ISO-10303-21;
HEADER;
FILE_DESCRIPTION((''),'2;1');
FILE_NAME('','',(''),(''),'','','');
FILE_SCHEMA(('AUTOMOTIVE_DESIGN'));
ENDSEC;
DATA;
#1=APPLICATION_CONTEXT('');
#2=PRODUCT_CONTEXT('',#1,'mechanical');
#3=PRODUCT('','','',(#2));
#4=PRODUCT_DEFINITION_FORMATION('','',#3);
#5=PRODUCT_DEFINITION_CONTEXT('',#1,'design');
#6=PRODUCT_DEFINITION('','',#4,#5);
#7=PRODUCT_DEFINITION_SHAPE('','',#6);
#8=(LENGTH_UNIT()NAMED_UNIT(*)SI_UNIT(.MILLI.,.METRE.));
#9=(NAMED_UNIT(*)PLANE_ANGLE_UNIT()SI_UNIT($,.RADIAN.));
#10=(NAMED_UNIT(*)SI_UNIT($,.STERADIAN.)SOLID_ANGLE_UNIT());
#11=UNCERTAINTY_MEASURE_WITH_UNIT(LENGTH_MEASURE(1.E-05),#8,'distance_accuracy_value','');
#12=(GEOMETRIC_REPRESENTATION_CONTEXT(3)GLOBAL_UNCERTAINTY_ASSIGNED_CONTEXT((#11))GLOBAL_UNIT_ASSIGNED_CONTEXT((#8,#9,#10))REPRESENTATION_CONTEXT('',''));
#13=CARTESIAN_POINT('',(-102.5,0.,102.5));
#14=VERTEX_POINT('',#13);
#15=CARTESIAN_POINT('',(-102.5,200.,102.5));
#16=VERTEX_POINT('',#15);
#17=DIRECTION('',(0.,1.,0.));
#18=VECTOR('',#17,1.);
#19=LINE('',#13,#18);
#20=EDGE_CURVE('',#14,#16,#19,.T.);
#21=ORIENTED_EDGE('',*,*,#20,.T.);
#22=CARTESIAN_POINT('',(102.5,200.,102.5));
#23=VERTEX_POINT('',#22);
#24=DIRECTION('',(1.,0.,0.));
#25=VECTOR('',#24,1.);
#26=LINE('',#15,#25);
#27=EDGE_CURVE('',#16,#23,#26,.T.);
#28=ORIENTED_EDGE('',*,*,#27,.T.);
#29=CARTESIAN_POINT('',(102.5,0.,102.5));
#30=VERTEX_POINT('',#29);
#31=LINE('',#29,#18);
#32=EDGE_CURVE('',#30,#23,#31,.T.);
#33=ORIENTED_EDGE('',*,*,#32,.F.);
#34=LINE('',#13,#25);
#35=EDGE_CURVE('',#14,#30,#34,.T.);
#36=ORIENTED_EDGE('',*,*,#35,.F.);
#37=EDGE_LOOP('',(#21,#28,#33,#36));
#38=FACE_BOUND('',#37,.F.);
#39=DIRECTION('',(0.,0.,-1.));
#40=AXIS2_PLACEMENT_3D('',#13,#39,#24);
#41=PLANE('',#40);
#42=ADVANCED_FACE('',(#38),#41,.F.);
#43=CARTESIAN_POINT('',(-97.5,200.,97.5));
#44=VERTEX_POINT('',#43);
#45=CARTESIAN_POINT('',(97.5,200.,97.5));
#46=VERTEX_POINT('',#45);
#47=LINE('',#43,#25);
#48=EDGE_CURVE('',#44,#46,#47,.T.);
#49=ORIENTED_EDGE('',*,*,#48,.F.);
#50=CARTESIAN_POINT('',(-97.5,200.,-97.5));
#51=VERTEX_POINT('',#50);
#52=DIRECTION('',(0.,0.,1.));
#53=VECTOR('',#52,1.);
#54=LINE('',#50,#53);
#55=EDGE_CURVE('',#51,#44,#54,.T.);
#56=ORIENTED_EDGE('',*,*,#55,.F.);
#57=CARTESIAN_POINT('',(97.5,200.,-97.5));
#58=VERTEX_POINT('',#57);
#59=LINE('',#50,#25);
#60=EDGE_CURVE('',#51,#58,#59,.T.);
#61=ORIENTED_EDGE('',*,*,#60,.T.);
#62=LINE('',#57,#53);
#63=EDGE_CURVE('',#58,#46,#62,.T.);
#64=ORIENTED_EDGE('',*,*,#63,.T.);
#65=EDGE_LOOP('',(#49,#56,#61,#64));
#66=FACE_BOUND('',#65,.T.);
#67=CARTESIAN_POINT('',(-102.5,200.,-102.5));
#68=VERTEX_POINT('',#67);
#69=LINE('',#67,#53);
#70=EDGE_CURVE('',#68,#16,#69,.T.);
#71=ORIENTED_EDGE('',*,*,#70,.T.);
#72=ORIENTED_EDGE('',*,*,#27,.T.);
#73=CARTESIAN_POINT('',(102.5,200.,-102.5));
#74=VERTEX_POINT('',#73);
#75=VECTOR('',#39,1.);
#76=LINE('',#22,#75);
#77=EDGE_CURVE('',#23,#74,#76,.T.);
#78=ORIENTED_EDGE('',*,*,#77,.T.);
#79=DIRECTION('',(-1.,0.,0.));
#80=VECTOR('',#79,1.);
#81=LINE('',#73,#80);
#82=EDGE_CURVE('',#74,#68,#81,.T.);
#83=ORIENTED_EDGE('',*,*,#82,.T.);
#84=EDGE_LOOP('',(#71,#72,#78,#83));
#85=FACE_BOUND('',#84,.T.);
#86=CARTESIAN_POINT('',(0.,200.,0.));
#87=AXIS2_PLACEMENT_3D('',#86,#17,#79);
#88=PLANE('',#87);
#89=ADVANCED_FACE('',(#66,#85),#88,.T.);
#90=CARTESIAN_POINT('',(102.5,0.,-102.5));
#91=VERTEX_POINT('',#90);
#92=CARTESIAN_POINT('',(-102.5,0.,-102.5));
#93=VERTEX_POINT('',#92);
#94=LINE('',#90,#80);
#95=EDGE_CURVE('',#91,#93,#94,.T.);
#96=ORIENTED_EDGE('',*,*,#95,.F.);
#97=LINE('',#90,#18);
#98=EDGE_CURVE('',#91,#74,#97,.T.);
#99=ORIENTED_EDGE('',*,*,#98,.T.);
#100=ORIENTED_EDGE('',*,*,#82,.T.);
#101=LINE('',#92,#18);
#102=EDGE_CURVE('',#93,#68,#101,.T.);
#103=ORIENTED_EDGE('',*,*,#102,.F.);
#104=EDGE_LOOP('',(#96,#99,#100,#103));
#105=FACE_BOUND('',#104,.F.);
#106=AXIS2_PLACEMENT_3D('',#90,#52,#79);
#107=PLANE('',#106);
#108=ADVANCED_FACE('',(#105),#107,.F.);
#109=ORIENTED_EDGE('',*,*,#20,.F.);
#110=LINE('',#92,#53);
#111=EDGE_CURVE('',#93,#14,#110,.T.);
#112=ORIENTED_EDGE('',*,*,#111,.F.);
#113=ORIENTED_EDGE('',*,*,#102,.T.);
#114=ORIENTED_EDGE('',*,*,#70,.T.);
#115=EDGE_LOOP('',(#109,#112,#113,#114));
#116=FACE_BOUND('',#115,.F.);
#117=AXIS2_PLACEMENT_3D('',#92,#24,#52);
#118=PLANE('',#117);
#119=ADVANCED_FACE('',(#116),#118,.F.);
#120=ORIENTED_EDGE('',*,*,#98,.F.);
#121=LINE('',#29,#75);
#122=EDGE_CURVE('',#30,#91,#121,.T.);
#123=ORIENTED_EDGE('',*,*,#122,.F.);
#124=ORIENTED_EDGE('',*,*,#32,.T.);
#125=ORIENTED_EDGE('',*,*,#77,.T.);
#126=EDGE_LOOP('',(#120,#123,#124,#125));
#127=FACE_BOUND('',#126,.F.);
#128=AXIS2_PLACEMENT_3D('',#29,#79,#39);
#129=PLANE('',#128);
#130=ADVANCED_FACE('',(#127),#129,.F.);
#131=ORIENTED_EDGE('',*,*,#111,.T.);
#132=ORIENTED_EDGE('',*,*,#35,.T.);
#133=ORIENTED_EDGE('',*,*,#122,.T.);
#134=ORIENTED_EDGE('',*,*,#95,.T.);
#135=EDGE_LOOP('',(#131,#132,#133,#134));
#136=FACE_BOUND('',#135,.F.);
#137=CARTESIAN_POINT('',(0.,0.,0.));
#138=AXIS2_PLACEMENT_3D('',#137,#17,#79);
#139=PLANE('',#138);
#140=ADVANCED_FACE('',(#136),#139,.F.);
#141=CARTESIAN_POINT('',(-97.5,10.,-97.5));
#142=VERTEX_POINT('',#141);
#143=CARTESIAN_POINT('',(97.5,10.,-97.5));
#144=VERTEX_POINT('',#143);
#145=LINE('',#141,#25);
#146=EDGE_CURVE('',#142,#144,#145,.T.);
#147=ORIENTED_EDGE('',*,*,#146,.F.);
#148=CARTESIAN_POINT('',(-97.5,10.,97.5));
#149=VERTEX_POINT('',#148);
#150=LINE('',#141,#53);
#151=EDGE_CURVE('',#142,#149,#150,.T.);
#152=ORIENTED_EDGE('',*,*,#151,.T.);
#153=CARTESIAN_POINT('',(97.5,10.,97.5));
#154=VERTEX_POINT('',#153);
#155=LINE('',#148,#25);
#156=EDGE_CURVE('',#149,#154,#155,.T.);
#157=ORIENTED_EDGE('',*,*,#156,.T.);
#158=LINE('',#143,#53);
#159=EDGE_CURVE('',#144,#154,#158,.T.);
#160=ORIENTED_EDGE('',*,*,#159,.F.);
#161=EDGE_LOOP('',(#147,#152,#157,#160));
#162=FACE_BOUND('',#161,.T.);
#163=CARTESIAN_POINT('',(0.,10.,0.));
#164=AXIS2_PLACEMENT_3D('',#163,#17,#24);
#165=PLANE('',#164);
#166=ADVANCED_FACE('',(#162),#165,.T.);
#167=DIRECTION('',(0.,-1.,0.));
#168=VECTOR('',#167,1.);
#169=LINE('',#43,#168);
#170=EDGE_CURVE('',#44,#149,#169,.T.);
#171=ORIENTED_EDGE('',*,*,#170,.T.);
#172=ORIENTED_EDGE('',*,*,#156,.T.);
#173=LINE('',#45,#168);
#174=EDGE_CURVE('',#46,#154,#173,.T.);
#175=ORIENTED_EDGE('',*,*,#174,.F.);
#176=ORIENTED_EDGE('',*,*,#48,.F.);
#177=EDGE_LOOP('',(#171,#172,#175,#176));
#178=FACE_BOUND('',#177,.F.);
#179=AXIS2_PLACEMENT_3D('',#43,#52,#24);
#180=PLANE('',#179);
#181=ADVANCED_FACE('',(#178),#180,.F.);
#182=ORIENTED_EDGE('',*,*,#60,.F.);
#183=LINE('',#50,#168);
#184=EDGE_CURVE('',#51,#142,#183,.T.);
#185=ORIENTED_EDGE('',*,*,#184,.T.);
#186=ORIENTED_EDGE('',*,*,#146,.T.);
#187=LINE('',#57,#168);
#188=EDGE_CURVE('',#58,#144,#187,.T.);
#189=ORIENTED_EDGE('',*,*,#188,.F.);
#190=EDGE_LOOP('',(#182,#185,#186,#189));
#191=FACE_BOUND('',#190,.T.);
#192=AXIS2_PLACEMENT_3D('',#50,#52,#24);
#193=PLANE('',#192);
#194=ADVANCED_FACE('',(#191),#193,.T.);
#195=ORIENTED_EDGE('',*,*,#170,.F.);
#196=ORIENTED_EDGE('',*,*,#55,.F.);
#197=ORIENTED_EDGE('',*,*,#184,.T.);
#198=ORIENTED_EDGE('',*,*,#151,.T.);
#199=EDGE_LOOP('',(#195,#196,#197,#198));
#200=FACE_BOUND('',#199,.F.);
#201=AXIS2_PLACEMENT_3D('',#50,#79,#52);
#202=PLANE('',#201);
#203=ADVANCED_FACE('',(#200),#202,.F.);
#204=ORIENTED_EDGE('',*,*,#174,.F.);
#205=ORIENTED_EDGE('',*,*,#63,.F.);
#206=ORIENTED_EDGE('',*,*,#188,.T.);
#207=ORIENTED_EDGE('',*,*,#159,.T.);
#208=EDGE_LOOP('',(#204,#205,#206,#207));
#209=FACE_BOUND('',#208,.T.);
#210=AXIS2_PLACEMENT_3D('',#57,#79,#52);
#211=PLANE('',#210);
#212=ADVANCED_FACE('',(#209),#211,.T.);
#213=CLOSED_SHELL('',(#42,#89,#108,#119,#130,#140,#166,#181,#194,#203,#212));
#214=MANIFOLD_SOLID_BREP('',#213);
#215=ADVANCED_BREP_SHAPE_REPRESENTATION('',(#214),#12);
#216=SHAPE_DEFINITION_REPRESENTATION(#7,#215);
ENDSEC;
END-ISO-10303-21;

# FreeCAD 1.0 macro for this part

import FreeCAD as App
import Part
import Sketcher
from FreeCAD import Vector
Q = App.Units.Quantity

doc = App.newDocument("Part")
body = doc.addObject("PartDesign::Body", "Body")

# Sketch on XZ plane
sketch1 = body.newObject("Sketcher::SketchObject", "Sketch")
sketch1.AttachmentSupport = (doc.getObject("XZ_Plane"), [""])
sketch1.MapMode = "FlatFace"
sketch1.addGeometry([
    Part.LineSegment(Vector(-102.5, -102.5, 0), Vector(-102.5, 102.5, 0)),
    Part.LineSegment(Vector(-102.5, 102.5, 0), Vector(102.5, 102.5, 0)),
    Part.LineSegment(Vector(102.5, 102.5, 0), Vector(102.5, -102.5, 0)),
    Part.LineSegment(Vector(102.5, -102.5, 0), Vector(-102.5, -102.5, 0)),
], False)
sketch1.addConstraint([
    Sketcher.Constraint("Coincident", 0, 2, 1, 1),
    Sketcher.Constraint("Coincident", 1, 2, 2, 1),
    Sketcher.Constraint("Coincident", 2, 2, 3, 1),
    Sketcher.Constraint("Coincident", 3, 2, 0, 1),
    Sketcher.Constraint("Vertical", 0),
    Sketcher.Constraint("Horizontal", 1),
    Sketcher.Constraint("Vertical", 2),
    Sketcher.Constraint("Horizontal", 3),
    Sketcher.Constraint("Symmetric", 0, 2, 2, 2, -1, 1),
    Sketcher.Constraint("Equal", 3, 0),
    Sketcher.Constraint("DistanceX", 1, 1, 1, 2, Q("205 mm")),
])
pad1 = body.newObject("PartDesign::Pad", "Pad")
pad1.Profile = sketch1
pad1.Length = 200
pad1.Reversed = True

# Sketch on XZ plane
sketch2 = body.newObject("Sketcher::SketchObject", "Sketch001")
sketch2.AttachmentSupport = (doc.getObject("XZ_Plane"), [""])
sketch2.MapMode = "FlatFace"
sketch2.AttachmentOffset = App.Placement(Vector(0, 0, -200), App.Rotation())
sketch2.addGeometry([
    Part.LineSegment(Vector(97.5, -97.5, 0), Vector(-97.5, -97.5, 0)),
    Part.LineSegment(Vector(-97.5, -97.5, 0), Vector(-97.5, 97.5, 0)),
    Part.LineSegment(Vector(-97.5, 97.5, 0), Vector(97.5, 97.5, 0)),
    Part.LineSegment(Vector(97.5, 97.5, 0), Vector(97.5, -97.5, 0)),
], False)
sketch2.addConstraint([
    Sketcher.Constraint("Coincident", 0, 2, 1, 1),
    Sketcher.Constraint("Coincident", 1, 2, 2, 1),
    Sketcher.Constraint("Coincident", 2, 2, 3, 1),
    Sketcher.Constraint("Coincident", 3, 2, 0, 1),
    Sketcher.Constraint("Horizontal", 0),
    Sketcher.Constraint("Vertical", 1),
    Sketcher.Constraint("Horizontal", 2),
    Sketcher.Constraint("Vertical", 3),
    Sketcher.Constraint("Symmetric", 0, 2, 2, 2, -1, 1),
    Sketcher.Constraint("Equal", 2, 1),
    Sketcher.Constraint("DistanceX", 0, 2, 0, 1, Q("195 mm")),
])
pocket1 = body.newObject("PartDesign::Pocket", "Pocket")
pocket1.Profile = sketch2
pocket1.Length = 190
pocket1.Reversed = True

doc.recompute()
